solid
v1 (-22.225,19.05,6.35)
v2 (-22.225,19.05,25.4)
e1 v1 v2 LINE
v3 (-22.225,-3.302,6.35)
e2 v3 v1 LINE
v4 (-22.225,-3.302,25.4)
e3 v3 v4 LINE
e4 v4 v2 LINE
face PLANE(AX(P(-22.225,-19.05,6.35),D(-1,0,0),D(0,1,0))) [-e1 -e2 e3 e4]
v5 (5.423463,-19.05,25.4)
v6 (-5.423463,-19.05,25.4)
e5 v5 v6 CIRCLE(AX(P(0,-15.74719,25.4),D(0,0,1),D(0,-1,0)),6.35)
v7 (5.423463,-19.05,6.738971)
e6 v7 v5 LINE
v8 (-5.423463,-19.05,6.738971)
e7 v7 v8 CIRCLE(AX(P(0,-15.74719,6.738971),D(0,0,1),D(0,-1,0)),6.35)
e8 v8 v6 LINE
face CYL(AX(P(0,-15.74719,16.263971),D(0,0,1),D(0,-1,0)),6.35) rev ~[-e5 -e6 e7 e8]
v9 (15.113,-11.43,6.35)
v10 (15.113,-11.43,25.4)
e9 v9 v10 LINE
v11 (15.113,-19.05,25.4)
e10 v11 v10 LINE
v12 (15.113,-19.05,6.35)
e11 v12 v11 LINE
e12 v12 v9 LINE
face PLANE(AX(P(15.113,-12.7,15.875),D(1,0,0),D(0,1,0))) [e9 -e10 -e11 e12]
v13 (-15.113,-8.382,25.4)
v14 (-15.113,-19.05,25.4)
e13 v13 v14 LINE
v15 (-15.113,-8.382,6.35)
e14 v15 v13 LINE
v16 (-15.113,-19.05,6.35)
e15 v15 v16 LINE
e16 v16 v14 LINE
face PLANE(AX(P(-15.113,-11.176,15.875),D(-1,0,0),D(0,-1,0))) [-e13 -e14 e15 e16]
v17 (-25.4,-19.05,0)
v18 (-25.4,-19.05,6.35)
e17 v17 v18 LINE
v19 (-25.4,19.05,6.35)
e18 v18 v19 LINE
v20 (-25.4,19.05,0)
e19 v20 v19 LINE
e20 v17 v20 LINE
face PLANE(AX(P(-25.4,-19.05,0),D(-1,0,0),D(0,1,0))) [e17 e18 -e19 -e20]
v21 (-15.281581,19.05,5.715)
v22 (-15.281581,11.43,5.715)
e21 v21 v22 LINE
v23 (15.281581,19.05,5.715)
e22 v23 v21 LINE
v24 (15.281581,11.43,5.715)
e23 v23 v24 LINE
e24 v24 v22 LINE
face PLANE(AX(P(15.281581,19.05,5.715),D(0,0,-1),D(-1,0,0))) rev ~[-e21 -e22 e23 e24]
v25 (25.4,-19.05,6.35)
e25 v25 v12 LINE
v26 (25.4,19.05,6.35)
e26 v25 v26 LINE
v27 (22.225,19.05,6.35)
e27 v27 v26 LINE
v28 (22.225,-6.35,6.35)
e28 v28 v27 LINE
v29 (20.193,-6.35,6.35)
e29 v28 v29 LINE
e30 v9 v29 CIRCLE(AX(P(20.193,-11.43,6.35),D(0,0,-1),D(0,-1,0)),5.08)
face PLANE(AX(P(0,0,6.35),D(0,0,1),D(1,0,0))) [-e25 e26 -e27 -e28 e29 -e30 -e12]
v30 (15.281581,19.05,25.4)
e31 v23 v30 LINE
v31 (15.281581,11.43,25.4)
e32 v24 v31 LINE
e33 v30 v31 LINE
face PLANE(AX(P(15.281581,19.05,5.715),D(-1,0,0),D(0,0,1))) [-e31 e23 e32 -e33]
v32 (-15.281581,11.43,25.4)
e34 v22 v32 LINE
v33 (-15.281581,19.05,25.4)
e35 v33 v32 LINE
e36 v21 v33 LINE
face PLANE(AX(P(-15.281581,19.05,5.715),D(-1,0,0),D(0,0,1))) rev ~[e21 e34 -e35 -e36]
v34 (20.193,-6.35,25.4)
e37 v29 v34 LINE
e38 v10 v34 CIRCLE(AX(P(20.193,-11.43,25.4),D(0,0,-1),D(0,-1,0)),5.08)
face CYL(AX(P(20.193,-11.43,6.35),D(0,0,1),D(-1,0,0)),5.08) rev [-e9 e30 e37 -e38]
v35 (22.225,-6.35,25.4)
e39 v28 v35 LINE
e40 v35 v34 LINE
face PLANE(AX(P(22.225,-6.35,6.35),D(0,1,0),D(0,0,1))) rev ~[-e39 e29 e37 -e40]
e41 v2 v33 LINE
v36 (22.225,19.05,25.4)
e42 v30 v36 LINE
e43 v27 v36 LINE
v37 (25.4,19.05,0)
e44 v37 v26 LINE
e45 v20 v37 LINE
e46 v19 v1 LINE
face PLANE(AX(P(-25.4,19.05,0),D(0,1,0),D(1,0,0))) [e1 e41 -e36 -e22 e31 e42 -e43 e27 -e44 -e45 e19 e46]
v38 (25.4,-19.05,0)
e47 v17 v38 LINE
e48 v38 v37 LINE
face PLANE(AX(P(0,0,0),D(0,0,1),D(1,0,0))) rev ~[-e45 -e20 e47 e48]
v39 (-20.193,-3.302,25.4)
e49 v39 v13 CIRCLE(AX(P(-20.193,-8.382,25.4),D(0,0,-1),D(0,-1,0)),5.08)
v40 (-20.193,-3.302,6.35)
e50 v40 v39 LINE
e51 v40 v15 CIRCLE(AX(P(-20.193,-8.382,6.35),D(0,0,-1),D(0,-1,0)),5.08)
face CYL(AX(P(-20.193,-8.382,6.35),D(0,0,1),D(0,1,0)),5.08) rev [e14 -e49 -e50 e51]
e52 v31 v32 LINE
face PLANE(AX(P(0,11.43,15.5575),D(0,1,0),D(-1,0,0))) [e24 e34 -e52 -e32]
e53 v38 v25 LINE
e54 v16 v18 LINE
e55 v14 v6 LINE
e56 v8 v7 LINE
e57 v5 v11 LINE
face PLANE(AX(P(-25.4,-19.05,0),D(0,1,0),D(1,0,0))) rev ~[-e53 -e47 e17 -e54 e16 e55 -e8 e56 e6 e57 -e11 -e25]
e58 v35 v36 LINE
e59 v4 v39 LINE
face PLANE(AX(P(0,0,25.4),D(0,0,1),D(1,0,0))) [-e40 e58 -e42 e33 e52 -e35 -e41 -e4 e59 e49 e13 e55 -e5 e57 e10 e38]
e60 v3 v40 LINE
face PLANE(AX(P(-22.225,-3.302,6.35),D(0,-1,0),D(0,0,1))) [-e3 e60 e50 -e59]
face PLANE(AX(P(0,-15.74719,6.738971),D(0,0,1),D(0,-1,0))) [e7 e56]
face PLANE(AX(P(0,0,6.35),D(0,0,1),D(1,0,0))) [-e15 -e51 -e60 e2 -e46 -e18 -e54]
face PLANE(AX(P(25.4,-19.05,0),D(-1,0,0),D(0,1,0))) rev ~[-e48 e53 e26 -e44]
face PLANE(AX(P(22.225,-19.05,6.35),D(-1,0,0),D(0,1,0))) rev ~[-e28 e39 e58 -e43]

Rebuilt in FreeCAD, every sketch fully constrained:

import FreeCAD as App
import Part
import Sketcher
Q = App.Units.Quantity


def edges_at(feature, points):
    """Names of the edges that pass closest to the given points."""
    edges = feature.Shape.Edges
    near = lambda p: min(range(len(edges)), key=lambda i: edges[i].distToShape(Part.Vertex(*p))[0])
    return sorted({f"Edge{near(p) + 1}" for p in points})

doc = App.newDocument("Part")
params = doc.addObject("Spreadsheet::Sheet", "Params")
for row, (alias, value) in enumerate([
    ("sketch1_width", "2 in"),
    ("sketch1_height", "1.5 in"),
    ("pad1_length", "0.25 in"),
    ("sketch2_height", "1.5 in"),
    ("sketch2_width", "1.75 in"),
    ("pad2_length", "0.75 in"),
    ("sketch3_width", "0.25 in"),
    ("sketch3_height", "0.75 in"),
    ("groove_angle", "360 deg"),
    ("sketch4_height", "0.775 in"),
    ("pocket1_length", "0.3 in"),
    ("sketch5_width", "0.62 in"),
    ("sketch5_height", "0.75 in"),
    ("pocket2_length", "0.28 in"),
    ("sketch6_width", "0.5 in"),
    ("sketch6_height", "0.75 in"),
    ("pocket3_length", "0.28 in"),
    ("fillet_radius", "0.2 in"),
    ("fillet2_radius", "0.2 in"),
], start=1):
    params.set(f"A{row}", alias)
    params.set(f"B{row}", "=" + value)
    params.setAlias(f"B{row}", alias)

body = doc.addObject("PartDesign::Body", "Body")

# Sketch on XY plane
sketch1 = doc.addObject("Sketcher::SketchObject", "Sketch")
body.addObject(sketch1)
sketch1.AttachmentSupport = (doc.XY_Plane, [""])
sketch1.MapMode = "FlatFace"
sketch1.addGeometry([
    Part.LineSegment(App.Vector(-25, 19, 0), App.Vector(-25, -19, 0)),
    Part.LineSegment(App.Vector(-25, -19, 0), App.Vector(25, -19, 0)),
    Part.LineSegment(App.Vector(25, -19, 0), App.Vector(25, 19, 0)),
    Part.LineSegment(App.Vector(25, 19, 0), App.Vector(-25, 19, 0)),
], False)
sketch1.addConstraint([
    Sketcher.Constraint("Coincident", 0, 2, 1, 1),
    Sketcher.Constraint("Coincident", 1, 2, 2, 1),
    Sketcher.Constraint("Coincident", 2, 2, 3, 1),
    Sketcher.Constraint("Coincident", 3, 2, 0, 1),
    Sketcher.Constraint("Vertical", 0),
    Sketcher.Constraint("Horizontal", 1),
    Sketcher.Constraint("Vertical", 2),
    Sketcher.Constraint("Horizontal", 3),
    Sketcher.Constraint("Symmetric", 0, 2, 2, 2, -1, 1),
    Sketcher.Constraint("DistanceX", 1, 1, 1, 2, Q("2 in")),
    Sketcher.Constraint("DistanceY", 0, 2, 0, 1, Q("1.5 in")),
])
sketch1.setExpression("Constraints[9]", "Params.sketch1_width")
sketch1.setExpression("Constraints[10]", "Params.sketch1_height")
pad1 = doc.addObject("PartDesign::Pad", "Pad")
body.addObject(pad1)
pad1.Profile = sketch1
pad1.setExpression("Length", "Params.pad1_length")

# Sketch on XY plane
sketch2 = doc.addObject("Sketcher::SketchObject", "Sketch001")
body.addObject(sketch2)
sketch2.AttachmentSupport = (doc.XY_Plane, [""])
sketch2.MapMode = "FlatFace"
sketch2.AttachmentOffset = App.Placement(App.Vector(0, 0, 0.25 * 25.4), App.Rotation())
sketch2.addGeometry([
    Part.LineSegment(App.Vector(-22, 19, 0), App.Vector(-22, -19, 0)),
    Part.LineSegment(App.Vector(-22, -19, 0), App.Vector(22, -19, 0)),
    Part.LineSegment(App.Vector(22, -19, 0), App.Vector(22, 19, 0)),
    Part.LineSegment(App.Vector(22, 19, 0), App.Vector(-22, 19, 0)),
], False)
sketch2.addConstraint([
    Sketcher.Constraint("Coincident", 0, 2, 1, 1),
    Sketcher.Constraint("Coincident", 1, 2, 2, 1),
    Sketcher.Constraint("Coincident", 2, 2, 3, 1),
    Sketcher.Constraint("Coincident", 3, 2, 0, 1),
    Sketcher.Constraint("Vertical", 0),
    Sketcher.Constraint("Horizontal", 1),
    Sketcher.Constraint("Vertical", 2),
    Sketcher.Constraint("Horizontal", 3),
    Sketcher.Constraint("Symmetric", 0, 2, 2, 2, -1, 1),
    Sketcher.Constraint("DistanceY", 0, 2, 0, 1, Q("1.5 in")),
    Sketcher.Constraint("DistanceX", 1, 1, 1, 2, Q("1.75 in")),
])
sketch2.setExpression("Constraints[9]", "Params.sketch2_height")
sketch2.setExpression("Constraints[10]", "Params.sketch2_width")
pad2 = doc.addObject("PartDesign::Pad", "Pad001")
body.addObject(pad2)
pad2.Profile = sketch2
pad2.setExpression("Length", "Params.pad2_length")

# Sketch on YZ plane
sketch3 = doc.addObject("Sketcher::SketchObject", "Sketch002")
body.addObject(sketch3)
sketch3.AttachmentSupport = (doc.YZ_Plane, [""])
sketch3.MapMode = "FlatFace"
sketch3.addGeometry([
    Part.LineSegment(App.Vector(-22, 26, 0), App.Vector(-22, 7, 0)),
    Part.LineSegment(App.Vector(-22, 7, 0), App.Vector(-16, 7, 0)),
    Part.LineSegment(App.Vector(-16, 7, 0), App.Vector(-16, 26, 0)),
    Part.LineSegment(App.Vector(-16, 26, 0), App.Vector(-22, 26, 0)),
], False)
sketch3.addGeometry(Part.LineSegment(App.Vector(-16, 7, 0), App.Vector(-16, 26, 0)), True)  # axis
sketch3.addConstraint([
    Sketcher.Constraint("Coincident", 0, 2, 1, 1),
    Sketcher.Constraint("Coincident", 1, 2, 2, 1),
    Sketcher.Constraint("Coincident", 2, 2, 3, 1),
    Sketcher.Constraint("Coincident", 3, 2, 0, 1),
    Sketcher.Constraint("Vertical", 0),
    Sketcher.Constraint("Horizontal", 1),
    Sketcher.Constraint("Vertical", 2),
    Sketcher.Constraint("Horizontal", 3),
    Sketcher.Constraint("Vertical", 4),
    Sketcher.Constraint("Coincident", 4, 1, 1, 2),
    Sketcher.Constraint("Horizontal", 3, 2, 4, 2),
    Sketcher.Constraint("DistanceX", 1, 1, 1, 2, Q("0.25 in")),
    Sketcher.Constraint("DistanceY", 0, 2, 0, 1, Q("0.75 in")),
    Sketcher.Constraint("DistanceX", 0, 2, -1, 1, 22.09719),
    Sketcher.Constraint("DistanceY", -1, 1, 0, 2, 6.738971),
])
sketch3.setExpression("Constraints[11]", "Params.sketch3_width")
sketch3.setExpression("Constraints[12]", "Params.sketch3_height")
groove = doc.addObject("PartDesign::Groove", "Groove")
body.addObject(groove)
groove.Profile = sketch3
groove.ReferenceAxis = (sketch3, ["Axis0"])
groove.setExpression("Angle", "Params.groove_angle")

# Sketch on XZ plane
sketch4 = doc.addObject("Sketcher::SketchObject", "Sketch003")
body.addObject(sketch4)
sketch4.AttachmentSupport = (doc.XZ_Plane, [""])
sketch4.MapMode = "FlatFace"
sketch4.AttachmentOffset = App.Placement(App.Vector(0, 0, -0.75 * 25.4), App.Rotation())
sketch4.addGeometry([
    Part.LineSegment(App.Vector(15, 25, 0), App.Vector(15, 6, 0)),
    Part.LineSegment(App.Vector(15, 6, 0), App.Vector(-15, 6, 0)),
    Part.LineSegment(App.Vector(-15, 6, 0), App.Vector(-15, 25, 0)),
    Part.LineSegment(App.Vector(-15, 25, 0), App.Vector(15, 25, 0)),
], False)
sketch4.addConstraint([
    Sketcher.Constraint("Coincident", 0, 2, 1, 1),
    Sketcher.Constraint("Coincident", 1, 2, 2, 1),
    Sketcher.Constraint("Coincident", 2, 2, 3, 1),
    Sketcher.Constraint("Coincident", 3, 2, 0, 1),
    Sketcher.Constraint("Vertical", 0),
    Sketcher.Constraint("Horizontal", 1),
    Sketcher.Constraint("Vertical", 2),
    Sketcher.Constraint("Horizontal", 3),
    Sketcher.Constraint("DistanceY", -1, 1, 2, 2, Q("1 in")),
    Sketcher.Constraint("DistanceY", 0, 2, 0, 1, Q("0.775 in")),
    Sketcher.Constraint("DistanceX", 1, 2, 1, 1, 30.563162),
    Sketcher.Constraint("DistanceX", -1, 1, 0, 2, 15.281581),
])
sketch4.setExpression("Constraints[9]", "Params.sketch4_height")
pocket1 = doc.addObject("PartDesign::Pocket", "Pocket")
body.addObject(pocket1)
pocket1.Profile = sketch4
pocket1.setExpression("Length", "Params.pocket1_length")
pocket1.Reversed = True

# Sketch on YZ plane
sketch5 = doc.addObject("Sketcher::SketchObject", "Sketch004")
body.addObject(sketch5)
sketch5.AttachmentSupport = (doc.YZ_Plane, [""])
sketch5.MapMode = "FlatFace"
sketch5.AttachmentOffset = App.Placement(App.Vector(0, 0, -0.875 * 25.4), App.Rotation())
sketch5.addGeometry([
    Part.LineSegment(App.Vector(-3, 25, 0), App.Vector(-3, 6, 0)),
    Part.LineSegment(App.Vector(-3, 6, 0), App.Vector(-19, 6, 0)),
    Part.LineSegment(App.Vector(-19, 6, 0), App.Vector(-19, 25, 0)),
    Part.LineSegment(App.Vector(-19, 25, 0), App.Vector(-3, 25, 0)),
], False)
sketch5.addConstraint([
    Sketcher.Constraint("Coincident", 0, 2, 1, 1),
    Sketcher.Constraint("Coincident", 1, 2, 2, 1),
    Sketcher.Constraint("Coincident", 2, 2, 3, 1),
    Sketcher.Constraint("Coincident", 3, 2, 0, 1),
    Sketcher.Constraint("Vertical", 0),
    Sketcher.Constraint("Horizontal", 1),
    Sketcher.Constraint("Vertical", 2),
    Sketcher.Constraint("Horizontal", 3),
    Sketcher.Constraint("DistanceY", -1, 1, 2, 2, Q("1 in")),
    Sketcher.Constraint("DistanceX", 1, 2, 1, 1, Q("0.62 in")),
    Sketcher.Constraint("DistanceY", 0, 2, 0, 1, Q("0.75 in")),
    Sketcher.Constraint("DistanceX", 0, 2, -1, 1, Q("0.13 in")),
])
sketch5.setExpression("Constraints[9]", "Params.sketch5_width")
sketch5.setExpression("Constraints[10]", "Params.sketch5_height")
pocket2 = doc.addObject("PartDesign::Pocket", "Pocket001")
body.addObject(pocket2)
pocket2.Profile = sketch5
pocket2.setExpression("Length", "Params.pocket2_length")
pocket2.Reversed = True

# Sketch on YZ plane
sketch6 = doc.addObject("Sketcher::SketchObject", "Sketch005")
body.addObject(sketch6)
sketch6.AttachmentSupport = (doc.YZ_Plane, [""])
sketch6.MapMode = "FlatFace"
sketch6.AttachmentOffset = App.Placement(App.Vector(0, 0, 0.875 * 25.4), App.Rotation())
sketch6.addGeometry([
    Part.LineSegment(App.Vector(-19, 25, 0), App.Vector(-19, 6, 0)),
    Part.LineSegment(App.Vector(-19, 6, 0), App.Vector(-6, 6, 0)),
    Part.LineSegment(App.Vector(-6, 6, 0), App.Vector(-6, 25, 0)),
    Part.LineSegment(App.Vector(-6, 25, 0), App.Vector(-19, 25, 0)),
], False)
sketch6.addConstraint([
    Sketcher.Constraint("Coincident", 0, 2, 1, 1),
    Sketcher.Constraint("Coincident", 1, 2, 2, 1),
    Sketcher.Constraint("Coincident", 2, 2, 3, 1),
    Sketcher.Constraint("Coincident", 3, 2, 0, 1),
    Sketcher.Constraint("Vertical", 0),
    Sketcher.Constraint("Horizontal", 1),
    Sketcher.Constraint("Vertical", 2),
    Sketcher.Constraint("Horizontal", 3),
    Sketcher.Constraint("DistanceX", 1, 1, 1, 2, Q("0.5 in")),
    Sketcher.Constraint("DistanceY", -1, 1, 2, 2, Q("1 in")),
    Sketcher.Constraint("DistanceY", 0, 2, 0, 1, Q("0.75 in")),
    Sketcher.Constraint("DistanceX", 0, 2, -1, 1, Q("0.75 in")),
])
sketch6.setExpression("Constraints[8]", "Params.sketch6_width")
sketch6.setExpression("Constraints[10]", "Params.sketch6_height")
pocket3 = doc.addObject("PartDesign::Pocket", "Pocket002")
body.addObject(pocket3)
pocket3.Profile = sketch6
pocket3.setExpression("Length", "Params.pocket3_length")
doc.recompute()

fillet = doc.addObject("PartDesign::Fillet", "Fillet")
body.addObject(fillet)
fillet.Base = (pocket3, edges_at(pocket3, [(-15.113, -3.302, 15.875)]))
fillet.setExpression("Radius", "Params.fillet_radius")
doc.recompute()

fillet2 = doc.addObject("PartDesign::Fillet", "Fillet001")
body.addObject(fillet2)
fillet2.Base = (fillet, edges_at(fillet, [(15.113, -6.35, 15.875)]))
fillet2.setExpression("Radius", "Params.fillet2_radius")

doc.recompute()
